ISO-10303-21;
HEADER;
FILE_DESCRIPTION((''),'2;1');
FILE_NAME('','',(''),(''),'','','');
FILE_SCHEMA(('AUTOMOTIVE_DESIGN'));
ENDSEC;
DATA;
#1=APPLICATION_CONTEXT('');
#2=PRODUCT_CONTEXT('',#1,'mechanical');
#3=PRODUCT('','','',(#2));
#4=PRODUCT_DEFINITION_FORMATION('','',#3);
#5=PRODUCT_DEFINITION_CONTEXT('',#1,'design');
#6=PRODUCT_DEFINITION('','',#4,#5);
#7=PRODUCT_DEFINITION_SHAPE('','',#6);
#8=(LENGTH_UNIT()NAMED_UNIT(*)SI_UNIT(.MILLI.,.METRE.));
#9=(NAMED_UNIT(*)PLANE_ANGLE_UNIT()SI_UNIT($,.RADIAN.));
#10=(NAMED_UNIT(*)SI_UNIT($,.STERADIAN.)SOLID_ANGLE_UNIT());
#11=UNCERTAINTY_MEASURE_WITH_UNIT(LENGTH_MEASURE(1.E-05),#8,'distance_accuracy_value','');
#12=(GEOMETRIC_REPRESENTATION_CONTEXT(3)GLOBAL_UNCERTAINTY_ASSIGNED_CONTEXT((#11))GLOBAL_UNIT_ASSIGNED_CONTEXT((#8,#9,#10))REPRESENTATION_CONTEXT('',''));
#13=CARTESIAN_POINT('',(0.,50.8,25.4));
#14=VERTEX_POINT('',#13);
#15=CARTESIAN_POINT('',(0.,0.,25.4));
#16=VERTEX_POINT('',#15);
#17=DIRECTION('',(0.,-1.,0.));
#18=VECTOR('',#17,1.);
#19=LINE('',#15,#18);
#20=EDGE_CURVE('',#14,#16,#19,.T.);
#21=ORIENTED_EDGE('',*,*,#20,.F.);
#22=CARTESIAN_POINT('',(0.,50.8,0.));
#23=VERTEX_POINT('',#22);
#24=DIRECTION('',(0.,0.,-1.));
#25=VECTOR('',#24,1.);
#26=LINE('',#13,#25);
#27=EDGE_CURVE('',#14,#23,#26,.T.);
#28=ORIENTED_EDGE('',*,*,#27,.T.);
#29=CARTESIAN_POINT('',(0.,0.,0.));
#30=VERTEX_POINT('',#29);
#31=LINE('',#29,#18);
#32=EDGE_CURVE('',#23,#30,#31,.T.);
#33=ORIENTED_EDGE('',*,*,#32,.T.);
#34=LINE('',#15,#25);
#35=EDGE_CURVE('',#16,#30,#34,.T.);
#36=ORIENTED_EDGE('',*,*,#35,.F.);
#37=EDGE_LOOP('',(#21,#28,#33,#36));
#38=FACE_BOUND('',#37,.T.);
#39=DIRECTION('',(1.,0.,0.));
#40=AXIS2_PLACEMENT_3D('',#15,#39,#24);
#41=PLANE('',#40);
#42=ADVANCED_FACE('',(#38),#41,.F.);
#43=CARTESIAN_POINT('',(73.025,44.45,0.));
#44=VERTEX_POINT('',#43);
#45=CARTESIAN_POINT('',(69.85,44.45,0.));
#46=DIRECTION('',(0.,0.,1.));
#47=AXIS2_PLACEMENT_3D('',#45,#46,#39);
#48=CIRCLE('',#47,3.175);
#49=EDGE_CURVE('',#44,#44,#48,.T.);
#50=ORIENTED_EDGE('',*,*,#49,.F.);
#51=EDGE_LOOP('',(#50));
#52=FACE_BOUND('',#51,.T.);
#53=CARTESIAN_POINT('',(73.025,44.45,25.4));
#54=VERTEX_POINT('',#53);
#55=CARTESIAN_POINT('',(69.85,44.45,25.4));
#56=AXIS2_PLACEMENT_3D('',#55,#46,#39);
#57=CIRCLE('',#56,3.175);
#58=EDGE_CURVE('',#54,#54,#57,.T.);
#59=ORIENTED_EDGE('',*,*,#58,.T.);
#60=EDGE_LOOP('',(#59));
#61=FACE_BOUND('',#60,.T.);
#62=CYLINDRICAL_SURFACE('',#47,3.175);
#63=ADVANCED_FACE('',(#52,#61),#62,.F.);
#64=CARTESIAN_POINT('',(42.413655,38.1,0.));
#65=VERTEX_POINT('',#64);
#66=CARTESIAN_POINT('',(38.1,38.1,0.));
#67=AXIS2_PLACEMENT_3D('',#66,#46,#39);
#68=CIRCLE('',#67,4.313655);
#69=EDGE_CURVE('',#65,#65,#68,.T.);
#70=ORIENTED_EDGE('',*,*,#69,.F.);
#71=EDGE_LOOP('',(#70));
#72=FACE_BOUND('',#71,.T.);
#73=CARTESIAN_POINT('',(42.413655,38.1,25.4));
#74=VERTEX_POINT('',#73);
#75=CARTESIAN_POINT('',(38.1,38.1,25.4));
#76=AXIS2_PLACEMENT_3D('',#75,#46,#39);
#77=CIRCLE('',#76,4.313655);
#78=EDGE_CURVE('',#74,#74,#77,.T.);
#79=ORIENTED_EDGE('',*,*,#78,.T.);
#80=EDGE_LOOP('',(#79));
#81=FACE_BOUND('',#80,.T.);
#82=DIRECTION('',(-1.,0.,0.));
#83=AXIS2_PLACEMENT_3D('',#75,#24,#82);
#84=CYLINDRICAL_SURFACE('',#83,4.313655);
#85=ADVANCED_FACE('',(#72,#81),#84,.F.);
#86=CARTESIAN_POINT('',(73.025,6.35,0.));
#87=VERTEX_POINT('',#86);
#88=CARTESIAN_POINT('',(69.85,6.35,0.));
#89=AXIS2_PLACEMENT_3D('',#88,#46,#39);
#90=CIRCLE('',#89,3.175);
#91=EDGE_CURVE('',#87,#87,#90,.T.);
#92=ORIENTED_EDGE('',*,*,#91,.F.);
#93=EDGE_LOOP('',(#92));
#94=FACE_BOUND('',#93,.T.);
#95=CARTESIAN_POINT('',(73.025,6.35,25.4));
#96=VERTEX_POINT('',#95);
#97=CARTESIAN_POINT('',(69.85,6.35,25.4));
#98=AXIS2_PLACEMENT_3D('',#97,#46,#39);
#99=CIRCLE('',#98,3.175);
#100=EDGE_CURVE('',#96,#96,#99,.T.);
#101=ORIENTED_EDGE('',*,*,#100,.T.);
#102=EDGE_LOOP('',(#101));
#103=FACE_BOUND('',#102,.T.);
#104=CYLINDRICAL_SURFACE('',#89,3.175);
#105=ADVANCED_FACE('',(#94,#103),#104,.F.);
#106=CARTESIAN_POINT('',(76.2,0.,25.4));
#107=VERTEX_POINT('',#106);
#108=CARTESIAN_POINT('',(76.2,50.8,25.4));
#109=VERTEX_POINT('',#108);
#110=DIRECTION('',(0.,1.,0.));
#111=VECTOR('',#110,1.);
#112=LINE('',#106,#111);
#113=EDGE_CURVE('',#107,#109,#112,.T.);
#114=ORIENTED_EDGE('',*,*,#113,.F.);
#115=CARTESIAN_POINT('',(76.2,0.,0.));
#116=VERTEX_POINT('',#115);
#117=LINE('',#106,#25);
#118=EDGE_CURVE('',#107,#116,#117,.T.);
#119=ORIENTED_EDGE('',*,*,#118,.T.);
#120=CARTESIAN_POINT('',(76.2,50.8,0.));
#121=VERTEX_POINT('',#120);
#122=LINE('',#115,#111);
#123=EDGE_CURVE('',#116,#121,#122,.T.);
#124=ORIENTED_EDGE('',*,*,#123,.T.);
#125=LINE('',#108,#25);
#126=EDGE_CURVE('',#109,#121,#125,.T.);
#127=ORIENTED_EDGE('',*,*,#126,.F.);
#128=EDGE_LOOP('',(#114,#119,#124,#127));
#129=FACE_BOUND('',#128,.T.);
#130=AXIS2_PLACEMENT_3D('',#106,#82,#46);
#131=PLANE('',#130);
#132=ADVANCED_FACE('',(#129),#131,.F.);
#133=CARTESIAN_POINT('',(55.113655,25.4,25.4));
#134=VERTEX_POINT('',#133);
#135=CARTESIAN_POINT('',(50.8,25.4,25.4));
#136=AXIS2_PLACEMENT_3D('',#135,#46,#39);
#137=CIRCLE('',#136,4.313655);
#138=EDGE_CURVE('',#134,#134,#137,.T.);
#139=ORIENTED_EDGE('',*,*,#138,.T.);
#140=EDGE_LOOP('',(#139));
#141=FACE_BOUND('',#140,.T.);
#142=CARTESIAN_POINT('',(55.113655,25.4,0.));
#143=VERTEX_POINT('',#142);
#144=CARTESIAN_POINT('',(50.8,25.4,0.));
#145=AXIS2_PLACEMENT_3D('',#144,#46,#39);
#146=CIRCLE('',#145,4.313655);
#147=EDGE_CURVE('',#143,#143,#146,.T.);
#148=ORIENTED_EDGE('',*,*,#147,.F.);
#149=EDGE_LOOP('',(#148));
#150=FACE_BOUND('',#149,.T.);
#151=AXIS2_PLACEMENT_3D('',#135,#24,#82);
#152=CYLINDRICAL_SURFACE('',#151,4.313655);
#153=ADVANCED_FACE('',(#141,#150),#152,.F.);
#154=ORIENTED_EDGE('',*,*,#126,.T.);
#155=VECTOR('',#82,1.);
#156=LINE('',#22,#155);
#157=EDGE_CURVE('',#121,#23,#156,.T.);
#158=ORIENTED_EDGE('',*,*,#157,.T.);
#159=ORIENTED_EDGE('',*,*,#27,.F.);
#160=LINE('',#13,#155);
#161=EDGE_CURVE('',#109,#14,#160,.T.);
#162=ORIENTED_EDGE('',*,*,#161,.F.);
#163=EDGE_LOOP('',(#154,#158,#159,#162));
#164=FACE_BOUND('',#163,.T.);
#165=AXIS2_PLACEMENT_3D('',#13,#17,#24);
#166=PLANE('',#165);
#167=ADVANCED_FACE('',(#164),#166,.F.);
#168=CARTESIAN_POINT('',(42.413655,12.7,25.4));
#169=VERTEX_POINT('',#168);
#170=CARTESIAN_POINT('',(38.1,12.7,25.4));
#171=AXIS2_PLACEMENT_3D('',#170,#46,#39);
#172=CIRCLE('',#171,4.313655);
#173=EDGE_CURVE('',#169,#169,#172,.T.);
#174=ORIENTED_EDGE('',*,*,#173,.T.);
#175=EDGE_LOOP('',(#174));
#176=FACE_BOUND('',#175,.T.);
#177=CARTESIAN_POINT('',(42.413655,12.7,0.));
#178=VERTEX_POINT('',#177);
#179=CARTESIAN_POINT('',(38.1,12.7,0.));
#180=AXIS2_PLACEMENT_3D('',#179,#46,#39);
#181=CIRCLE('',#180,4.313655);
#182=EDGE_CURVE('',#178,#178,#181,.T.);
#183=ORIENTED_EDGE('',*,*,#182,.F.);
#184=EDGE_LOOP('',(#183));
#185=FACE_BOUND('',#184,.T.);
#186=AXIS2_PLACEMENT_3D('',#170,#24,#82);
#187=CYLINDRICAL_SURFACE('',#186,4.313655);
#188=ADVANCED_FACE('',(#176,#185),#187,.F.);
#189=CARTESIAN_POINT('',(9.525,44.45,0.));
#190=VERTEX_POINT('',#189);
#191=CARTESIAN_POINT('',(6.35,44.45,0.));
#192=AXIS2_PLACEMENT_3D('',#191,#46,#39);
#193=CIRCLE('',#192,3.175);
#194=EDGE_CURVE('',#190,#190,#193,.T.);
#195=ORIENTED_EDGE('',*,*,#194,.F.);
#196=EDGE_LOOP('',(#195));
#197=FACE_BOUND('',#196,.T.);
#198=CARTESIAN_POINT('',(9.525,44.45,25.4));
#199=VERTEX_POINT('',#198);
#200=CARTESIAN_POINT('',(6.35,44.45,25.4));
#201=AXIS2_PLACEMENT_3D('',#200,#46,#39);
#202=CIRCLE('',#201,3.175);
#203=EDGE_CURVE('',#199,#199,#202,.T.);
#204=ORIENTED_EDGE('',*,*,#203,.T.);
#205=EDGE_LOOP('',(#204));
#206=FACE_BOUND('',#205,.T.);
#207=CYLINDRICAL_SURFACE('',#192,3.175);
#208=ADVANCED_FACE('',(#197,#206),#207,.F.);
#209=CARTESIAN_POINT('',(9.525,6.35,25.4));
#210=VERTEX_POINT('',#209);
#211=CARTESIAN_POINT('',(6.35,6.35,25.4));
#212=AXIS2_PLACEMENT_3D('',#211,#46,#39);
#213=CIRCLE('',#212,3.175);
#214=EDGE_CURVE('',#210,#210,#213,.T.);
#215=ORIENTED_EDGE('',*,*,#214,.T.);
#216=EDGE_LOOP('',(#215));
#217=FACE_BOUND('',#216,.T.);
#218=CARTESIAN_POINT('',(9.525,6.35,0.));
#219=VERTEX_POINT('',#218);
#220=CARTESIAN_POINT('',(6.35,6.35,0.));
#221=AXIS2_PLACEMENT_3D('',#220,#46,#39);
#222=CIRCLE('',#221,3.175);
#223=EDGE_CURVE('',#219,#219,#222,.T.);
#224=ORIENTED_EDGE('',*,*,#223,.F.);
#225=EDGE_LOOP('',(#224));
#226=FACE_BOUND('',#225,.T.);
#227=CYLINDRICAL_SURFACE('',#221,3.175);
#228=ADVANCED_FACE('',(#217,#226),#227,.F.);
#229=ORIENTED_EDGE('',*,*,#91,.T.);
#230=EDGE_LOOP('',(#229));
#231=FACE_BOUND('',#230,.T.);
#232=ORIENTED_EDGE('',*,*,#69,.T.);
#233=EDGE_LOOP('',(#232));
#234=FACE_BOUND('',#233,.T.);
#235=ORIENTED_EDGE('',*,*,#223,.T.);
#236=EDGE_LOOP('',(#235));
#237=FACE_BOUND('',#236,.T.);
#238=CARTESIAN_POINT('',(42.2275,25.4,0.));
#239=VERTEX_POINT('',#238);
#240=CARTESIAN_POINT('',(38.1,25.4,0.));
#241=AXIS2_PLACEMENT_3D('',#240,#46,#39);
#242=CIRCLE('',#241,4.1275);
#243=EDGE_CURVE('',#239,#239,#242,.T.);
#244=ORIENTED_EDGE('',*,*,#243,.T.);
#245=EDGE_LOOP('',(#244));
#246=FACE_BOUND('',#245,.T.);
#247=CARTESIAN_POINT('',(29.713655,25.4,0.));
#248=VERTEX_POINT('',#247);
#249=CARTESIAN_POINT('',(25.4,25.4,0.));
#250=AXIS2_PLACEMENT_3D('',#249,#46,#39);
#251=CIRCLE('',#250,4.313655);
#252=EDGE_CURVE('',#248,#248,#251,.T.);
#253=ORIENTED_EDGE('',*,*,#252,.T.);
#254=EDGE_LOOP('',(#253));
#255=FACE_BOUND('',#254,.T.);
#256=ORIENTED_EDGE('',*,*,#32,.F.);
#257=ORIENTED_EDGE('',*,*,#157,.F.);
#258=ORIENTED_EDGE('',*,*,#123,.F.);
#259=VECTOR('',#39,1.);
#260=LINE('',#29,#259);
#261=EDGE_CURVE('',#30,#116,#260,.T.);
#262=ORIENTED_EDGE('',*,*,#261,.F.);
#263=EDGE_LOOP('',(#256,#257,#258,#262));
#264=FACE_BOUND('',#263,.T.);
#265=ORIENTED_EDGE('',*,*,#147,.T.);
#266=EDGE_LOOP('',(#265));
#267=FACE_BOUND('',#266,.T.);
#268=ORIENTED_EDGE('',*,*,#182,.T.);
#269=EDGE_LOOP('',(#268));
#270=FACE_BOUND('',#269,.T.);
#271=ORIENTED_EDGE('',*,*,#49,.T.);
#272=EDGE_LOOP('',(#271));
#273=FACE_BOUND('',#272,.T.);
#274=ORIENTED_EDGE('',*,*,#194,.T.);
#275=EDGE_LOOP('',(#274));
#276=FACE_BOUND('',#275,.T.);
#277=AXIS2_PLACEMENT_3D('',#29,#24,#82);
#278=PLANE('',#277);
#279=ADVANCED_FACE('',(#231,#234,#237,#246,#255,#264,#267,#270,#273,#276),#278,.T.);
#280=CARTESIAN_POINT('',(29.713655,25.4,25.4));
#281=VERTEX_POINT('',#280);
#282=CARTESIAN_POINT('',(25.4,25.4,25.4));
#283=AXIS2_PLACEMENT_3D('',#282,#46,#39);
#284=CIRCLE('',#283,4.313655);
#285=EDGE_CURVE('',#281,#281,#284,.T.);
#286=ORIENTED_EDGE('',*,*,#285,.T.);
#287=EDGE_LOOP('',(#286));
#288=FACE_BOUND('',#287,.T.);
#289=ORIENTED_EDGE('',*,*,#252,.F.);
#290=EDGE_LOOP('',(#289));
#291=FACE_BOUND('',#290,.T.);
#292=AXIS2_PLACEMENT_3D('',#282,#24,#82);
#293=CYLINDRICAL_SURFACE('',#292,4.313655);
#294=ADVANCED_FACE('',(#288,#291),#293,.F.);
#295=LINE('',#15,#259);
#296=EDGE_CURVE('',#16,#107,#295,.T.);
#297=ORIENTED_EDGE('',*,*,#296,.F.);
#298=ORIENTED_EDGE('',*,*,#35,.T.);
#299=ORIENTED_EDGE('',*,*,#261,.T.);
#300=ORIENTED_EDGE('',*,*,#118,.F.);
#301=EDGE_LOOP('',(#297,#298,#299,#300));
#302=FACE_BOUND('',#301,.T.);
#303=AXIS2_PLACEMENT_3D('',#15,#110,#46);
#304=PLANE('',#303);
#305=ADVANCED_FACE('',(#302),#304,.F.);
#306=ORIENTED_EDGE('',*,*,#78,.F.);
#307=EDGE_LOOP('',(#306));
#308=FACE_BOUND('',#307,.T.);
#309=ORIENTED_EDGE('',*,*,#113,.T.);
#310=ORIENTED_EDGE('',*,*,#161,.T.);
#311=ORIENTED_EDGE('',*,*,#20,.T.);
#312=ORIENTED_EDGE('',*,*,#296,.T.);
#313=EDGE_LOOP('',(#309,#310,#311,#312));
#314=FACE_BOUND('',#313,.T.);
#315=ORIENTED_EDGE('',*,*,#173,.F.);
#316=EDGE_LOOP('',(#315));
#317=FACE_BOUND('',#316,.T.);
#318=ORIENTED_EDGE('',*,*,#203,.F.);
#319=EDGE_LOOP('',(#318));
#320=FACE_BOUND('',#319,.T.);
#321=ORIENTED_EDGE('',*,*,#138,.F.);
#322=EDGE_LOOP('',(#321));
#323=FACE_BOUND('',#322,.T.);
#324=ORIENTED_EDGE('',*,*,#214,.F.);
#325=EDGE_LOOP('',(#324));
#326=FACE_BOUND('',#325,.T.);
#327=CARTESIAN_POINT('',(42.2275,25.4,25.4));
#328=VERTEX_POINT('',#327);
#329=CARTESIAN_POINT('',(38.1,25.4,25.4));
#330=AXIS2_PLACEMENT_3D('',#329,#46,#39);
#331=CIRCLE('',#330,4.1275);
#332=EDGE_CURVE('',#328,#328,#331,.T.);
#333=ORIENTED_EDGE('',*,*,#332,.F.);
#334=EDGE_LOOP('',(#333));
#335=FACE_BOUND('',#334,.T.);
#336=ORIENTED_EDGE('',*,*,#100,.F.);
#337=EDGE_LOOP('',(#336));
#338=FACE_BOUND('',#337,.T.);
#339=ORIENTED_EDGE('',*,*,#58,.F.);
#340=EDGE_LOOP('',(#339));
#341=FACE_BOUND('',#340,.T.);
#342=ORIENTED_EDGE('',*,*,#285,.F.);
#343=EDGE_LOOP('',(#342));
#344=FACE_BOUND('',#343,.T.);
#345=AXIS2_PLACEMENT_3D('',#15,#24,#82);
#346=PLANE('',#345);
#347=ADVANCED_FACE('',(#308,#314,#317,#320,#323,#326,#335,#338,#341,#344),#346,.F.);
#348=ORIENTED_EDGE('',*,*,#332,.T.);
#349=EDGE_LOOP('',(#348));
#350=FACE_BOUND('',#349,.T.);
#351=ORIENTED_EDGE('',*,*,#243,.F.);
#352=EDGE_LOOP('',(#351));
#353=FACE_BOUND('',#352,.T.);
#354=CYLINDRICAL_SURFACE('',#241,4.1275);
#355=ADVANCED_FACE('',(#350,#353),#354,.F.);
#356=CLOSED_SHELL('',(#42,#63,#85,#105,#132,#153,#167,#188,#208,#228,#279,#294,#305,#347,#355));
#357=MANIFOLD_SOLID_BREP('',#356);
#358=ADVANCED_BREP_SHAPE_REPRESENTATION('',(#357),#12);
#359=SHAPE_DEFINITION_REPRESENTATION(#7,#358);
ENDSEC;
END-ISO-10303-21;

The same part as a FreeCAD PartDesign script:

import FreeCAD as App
import Part
import Sketcher
from FreeCAD import Vector
Q = App.Units.Quantity


def add_polygon(sketch, points):
    """Adds a closed chain of lines whose ends are joined by coincident constraints."""
    first, n = sketch.GeometryCount, len(points)
    for a, b in zip(points, points[1:] + points[:1]):
        sketch.addGeometry(Part.LineSegment(App.Vector(*a, 0), App.Vector(*b, 0)), False)
    for i in range(n):
        sketch.addConstraint(Sketcher.Constraint("Coincident", first + i, 2, first + (i + 1) % n, 1))

doc = App.newDocument("Part")
body = doc.addObject("PartDesign::Body", "Body")

# Sketch on XY plane
sketch1 = body.newObject("Sketcher::SketchObject", "Sketch")
sketch1.AttachmentSupport = (doc.getObject("XY_Plane"), [""])
sketch1.MapMode = "FlatFace"
add_polygon(sketch1, [(0, 50.8), (0, 0), (76.2, 0), (76.2, 50.8)])  # lines 0-3
sketch1.addGeometry(Part.Circle(Vector(25.4, 25.4, 0), Vector(0, 0, 1), 4.3), False)  # 4
sketch1.addGeometry(Part.Circle(Vector(38.1, 12.7, 0), Vector(0, 0, 1), 4.3), False)  # 5
sketch1.addGeometry(Part.Circle(Vector(50.8, 25.4, 0), Vector(0, 0, 1), 4.3), False)  # 6
sketch1.addGeometry(Part.Circle(Vector(38.1, 38.1, 0), Vector(0, 0, 1), 4.3), False)  # 7
sketch1.addConstraint(Sketcher.Constraint("Vertical", 0))
sketch1.addConstraint(Sketcher.Constraint("Horizontal", 1))
sketch1.addConstraint(Sketcher.Constraint("Vertical", 2))
sketch1.addConstraint(Sketcher.Constraint("Horizontal", 3))
sketch1.addConstraint(Sketcher.Constraint("Coincident", 0, 2, -1, 1))
sketch1.addConstraint(Sketcher.Constraint("Equal", 4, 5))
sketch1.addConstraint(Sketcher.Constraint("Equal", 5, 6))
sketch1.addConstraint(Sketcher.Constraint("Equal", 6, 7))
sketch1.addConstraint(Sketcher.Constraint("Horizontal", 4, 3, 6, 3))
sketch1.addConstraint(Sketcher.Constraint("Vertical", 5, 3, 7, 3))
sketch1.addConstraint(Sketcher.Constraint("DistanceX", 1, 1, 1, 2, Q("3 in")))
sketch1.addConstraint(Sketcher.Constraint("DistanceY", 0, 2, 0, 1, Q("2 in")))
sketch1.addConstraint(Sketcher.Constraint("DistanceX", -1, 1, 4, 3, Q("1 in")))
sketch1.addConstraint(Sketcher.Constraint("DistanceY", -1, 1, 4, 3, Q("1 in")))
sketch1.addConstraint(Sketcher.Constraint("DistanceX", -1, 1, 6, 3, Q("2 in")))
sketch1.addConstraint(Sketcher.Constraint("DistanceY", 5, 3, 7, 3, Q("1 in")))
sketch1.addConstraint(Sketcher.Constraint("DistanceX", -1, 1, 5, 3, Q("1.5 in")))
sketch1.addConstraint(Sketcher.Constraint("DistanceY", -1, 1, 5, 3, Q("0.5 in")))
sketch1.addConstraint(Sketcher.Constraint("Diameter", 4, Q("8.627311 mm")))
pad1 = body.newObject("PartDesign::Pad", "Pad")
pad1.Profile = sketch1
pad1.Length = Q("1 in")

# Sketch on XY plane
sketch2 = body.newObject("Sketcher::SketchObject", "Sketch001")
sketch2.AttachmentSupport = (doc.getObject("XY_Plane"), [""])
sketch2.MapMode = "FlatFace"
sketch2.AttachmentOffset = App.Placement(Vector(0, 0, 1 * 25.4), App.Rotation())
sketch2.addGeometry(Part.Circle(Vector(38.1, 25.4, 0), Vector(0, 0, 1), 4.1), False)
sketch2.addGeometry(Part.Circle(Vector(6.3, 44.5, 0), Vector(0, 0, 1), 3.2), False)
sketch2.addGeometry(Part.Circle(Vector(69.8, 44.5, 0), Vector(0, 0, 1), 3.2), False)
sketch2.addGeometry(Part.Circle(Vector(6.3, 6.3, 0), Vector(0, 0, 1), 3.2), False)
sketch2.addGeometry(Part.Circle(Vector(69.8, 6.3, 0), Vector(0, 0, 1), 3.2), False)
sketch2.addConstraint(Sketcher.Constraint("Equal", 1, 2))
sketch2.addConstraint(Sketcher.Constraint("Equal", 2, 3))
sketch2.addConstraint(Sketcher.Constraint("Equal", 3, 4))
sketch2.addConstraint(Sketcher.Constraint("Horizontal", 1, 3, 2, 3))
sketch2.addConstraint(Sketcher.Constraint("Horizontal", 3, 3, 4, 3))
sketch2.addConstraint(Sketcher.Constraint("Vertical", 1, 3, 3, 3))
sketch2.addConstraint(Sketcher.Constraint("Vertical", 2, 3, 4, 3))
sketch2.addConstraint(Sketcher.Constraint("Diameter", 1, Q("0.25 in")))
sketch2.addConstraint(Sketcher.Constraint("Diameter", 0, Q("0.325 in")))
sketch2.addConstraint(Sketcher.Constraint("DistanceY", -1, 1, 0, 3, Q("1 in")))
sketch2.addConstraint(Sketcher.Constraint("DistanceX", -1, 1, 0, 3, Q("1.5 in")))
sketch2.addConstraint(Sketcher.Constraint("DistanceX", 1, 3, 2, 3, Q("2.5 in")))
sketch2.addConstraint(Sketcher.Constraint("DistanceY", 3, 3, 1, 3, Q("1.5 in")))
sketch2.addConstraint(Sketcher.Constraint("DistanceX", -1, 1, 1, 3, Q("0.25 in")))
sketch2.addConstraint(Sketcher.Constraint("DistanceY", -1, 1, 1, 3, Q("1.75 in")))
pocket1 = body.newObject("PartDesign::Pocket", "Pocket")
pocket1.Profile = sketch2
pocket1.Length = Q("1 in")

doc.recompute()
